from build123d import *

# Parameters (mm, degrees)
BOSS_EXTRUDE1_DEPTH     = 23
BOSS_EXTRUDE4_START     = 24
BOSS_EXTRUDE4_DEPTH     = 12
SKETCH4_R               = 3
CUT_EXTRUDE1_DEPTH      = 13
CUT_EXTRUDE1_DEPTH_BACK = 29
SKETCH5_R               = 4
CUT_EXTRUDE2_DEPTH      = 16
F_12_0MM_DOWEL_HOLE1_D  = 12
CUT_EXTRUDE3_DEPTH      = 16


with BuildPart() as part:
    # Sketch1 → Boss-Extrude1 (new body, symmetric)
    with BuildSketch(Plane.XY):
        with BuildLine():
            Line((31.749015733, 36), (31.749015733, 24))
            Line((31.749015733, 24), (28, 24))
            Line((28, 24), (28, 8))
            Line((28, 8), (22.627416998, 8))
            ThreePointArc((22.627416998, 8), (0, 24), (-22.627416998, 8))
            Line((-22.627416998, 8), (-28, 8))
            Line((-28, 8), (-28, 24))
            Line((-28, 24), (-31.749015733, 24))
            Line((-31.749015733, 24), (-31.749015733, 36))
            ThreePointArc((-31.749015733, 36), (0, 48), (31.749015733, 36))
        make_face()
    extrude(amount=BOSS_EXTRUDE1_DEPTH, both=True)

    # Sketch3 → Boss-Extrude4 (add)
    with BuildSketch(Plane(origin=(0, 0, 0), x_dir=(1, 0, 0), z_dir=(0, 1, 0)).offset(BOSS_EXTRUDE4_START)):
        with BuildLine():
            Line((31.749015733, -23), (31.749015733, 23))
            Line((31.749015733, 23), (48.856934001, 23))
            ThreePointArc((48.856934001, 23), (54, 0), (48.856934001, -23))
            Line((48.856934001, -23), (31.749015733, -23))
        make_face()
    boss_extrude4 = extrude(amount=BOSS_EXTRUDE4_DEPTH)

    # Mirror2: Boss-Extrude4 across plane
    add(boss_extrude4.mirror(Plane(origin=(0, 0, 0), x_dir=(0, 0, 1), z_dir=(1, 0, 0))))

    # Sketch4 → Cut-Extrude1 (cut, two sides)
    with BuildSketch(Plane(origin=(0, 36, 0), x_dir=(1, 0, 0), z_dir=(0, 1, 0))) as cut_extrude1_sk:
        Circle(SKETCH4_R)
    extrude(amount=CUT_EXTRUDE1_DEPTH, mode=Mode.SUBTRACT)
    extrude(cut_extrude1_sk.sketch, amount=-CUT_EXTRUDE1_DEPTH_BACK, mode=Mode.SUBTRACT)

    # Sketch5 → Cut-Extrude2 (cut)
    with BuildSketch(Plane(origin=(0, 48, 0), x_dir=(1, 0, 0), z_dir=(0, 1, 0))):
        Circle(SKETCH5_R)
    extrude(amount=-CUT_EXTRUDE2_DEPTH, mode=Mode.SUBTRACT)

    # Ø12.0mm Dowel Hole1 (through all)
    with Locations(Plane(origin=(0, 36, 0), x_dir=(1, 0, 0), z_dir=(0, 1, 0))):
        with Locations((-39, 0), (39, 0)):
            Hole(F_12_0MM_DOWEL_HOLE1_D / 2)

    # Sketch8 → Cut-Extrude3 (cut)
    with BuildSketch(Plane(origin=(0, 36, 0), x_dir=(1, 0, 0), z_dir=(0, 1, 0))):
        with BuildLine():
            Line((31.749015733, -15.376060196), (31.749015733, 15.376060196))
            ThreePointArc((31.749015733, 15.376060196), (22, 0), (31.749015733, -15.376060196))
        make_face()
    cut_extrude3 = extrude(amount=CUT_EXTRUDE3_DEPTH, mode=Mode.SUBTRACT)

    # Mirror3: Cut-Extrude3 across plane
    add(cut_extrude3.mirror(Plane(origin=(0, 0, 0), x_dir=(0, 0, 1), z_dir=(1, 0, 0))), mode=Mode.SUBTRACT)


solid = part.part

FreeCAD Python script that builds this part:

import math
import FreeCAD as App
import Part
import Sketcher
from FreeCAD import Vector

doc = App.newDocument("Part")
body = doc.addObject("PartDesign::Body", "Body")

sketch1 = doc.addObject("Sketcher::SketchObject", "Sketch")
body.addObject(sketch1)
sketch1.AttachmentSupport = (doc.XY_Plane, [""])
sketch1.MapMode = "FlatFace"
sketch1.addGeometry([
    Part.LineSegment(Vector(31.7, 24, 0), Vector(31.7, 36, 0)),
    Part.ArcOfCircle(Part.Circle(Vector(0, 0, 0), Vector(0, 0, 1), 48), math.radians(49), math.radians(131)),
    Part.LineSegment(Vector(-31.7, 36, 0), Vector(-31.7, 24, 0)),
    Part.LineSegment(Vector(-31.7, 24, 0), Vector(-28, 24, 0)),
    Part.LineSegment(Vector(-28, 24, 0), Vector(-28, 8, 0)),
    Part.LineSegment(Vector(-28, 8, 0), Vector(-22.6, 8, 0)),
    Part.ArcOfCircle(Part.Circle(Vector(0, 0, 0), Vector(0, 0, 1), 24), math.radians(19), math.radians(161)),
    Part.LineSegment(Vector(22.6, 8, 0), Vector(28, 8, 0)),
    Part.LineSegment(Vector(28, 8, 0), Vector(28, 24, 0)),
    Part.LineSegment(Vector(28, 24, 0), Vector(31.7, 24, 0)),
], False)
sketch1.addConstraint([
    Sketcher.Constraint("Coincident", 0, 2, 1, 1),
    Sketcher.Constraint("Coincident", 1, 2, 2, 1),
    Sketcher.Constraint("Coincident", 2, 2, 3, 1),
    Sketcher.Constraint("Coincident", 3, 2, 4, 1),
    Sketcher.Constraint("Coincident", 4, 2, 5, 1),
    Sketcher.Constraint("Coincident", 5, 2, 6, 2),
    Sketcher.Constraint("Coincident", 6, 1, 7, 1),
    Sketcher.Constraint("Coincident", 7, 2, 8, 1),
    Sketcher.Constraint("Coincident", 8, 2, 9, 1),
    Sketcher.Constraint("Coincident", 9, 2, 0, 1),
    Sketcher.Constraint("Vertical", 0),
    Sketcher.Constraint("Vertical", 2),
    Sketcher.Constraint("Horizontal", 3),
    Sketcher.Constraint("Vertical", 4),
    Sketcher.Constraint("Horizontal", 5),
    Sketcher.Constraint("Horizontal", 7),
    Sketcher.Constraint("Vertical", 8),
    Sketcher.Constraint("Horizontal", 9),
    Sketcher.Constraint("Coincident", 1, 3, -1, 1),
    Sketcher.Constraint("Coincident", 6, 3, -1, 1),
    Sketcher.Constraint("Symmetric", 4, 2, 7, 2, -2),
    Sketcher.Constraint("Symmetric", 2, 2, 9, 2, -2),
    Sketcher.Constraint("Radius", 1, 48.0),
    Sketcher.Constraint("Radius", 6, 24.0),
    Sketcher.Constraint("DistanceY", 0, 1, 0, 2, 12.0),
    Sketcher.Constraint("DistanceY", 4, 2, 4, 1, 16.0),
    Sketcher.Constraint("DistanceY", -1, 1, 0, 2, 36.0),
    Sketcher.Constraint("DistanceX", 3, 2, -1, 1, 28.0),
])
pad1 = doc.addObject("PartDesign::Pad", "Pad")
body.addObject(pad1)
pad1.Profile = sketch1
pad1.Length = 46
pad1.Midplane = True

sketch2 = doc.addObject("Sketcher::SketchObject", "Sketch001")
body.addObject(sketch2)
sketch2.AttachmentSupport = (doc.XZ_Plane, [""])
sketch2.MapMode = "FlatFace"
sketch2.AttachmentOffset = App.Placement(Vector(0, 0, -24), App.Rotation())
sketch2.addGeometry([
    Part.LineSegment(Vector(32, -23, 0), Vector(32, 23, 0)),
    Part.LineSegment(Vector(32, 23, 0), Vector(49, 23, 0)),
    Part.ArcOfCircle(Part.Circle(Vector(0, 0, 0), Vector(0, 0, 1), 54), math.radians(-25), math.radians(25)),
    Part.LineSegment(Vector(49, -23, 0), Vector(32, -23, 0)),
], False)
sketch2.addConstraint([
    Sketcher.Constraint("Coincident", 0, 2, 1, 1),
    Sketcher.Constraint("Coincident", 1, 2, 2, 2),
    Sketcher.Constraint("Coincident", 2, 1, 3, 1),
    Sketcher.Constraint("Coincident", 3, 2, 0, 1),
    Sketcher.Constraint("Vertical", 0),
    Sketcher.Constraint("Horizontal", 1),
    Sketcher.Constraint("Horizontal", 3),
    Sketcher.Constraint("Coincident", 2, 3, -1, 1),
    Sketcher.Constraint("Vertical", 1, 2, 2, 1),
    Sketcher.Constraint("Radius", 2, 54.0),
    Sketcher.Constraint("DistanceY", 0, 1, 0, 2, 46.0),
    Sketcher.Constraint("DistanceX", 1, 1, 1, 2, 17.107918),
])
pad2 = doc.addObject("PartDesign::Pad", "Pad001")
body.addObject(pad2)
pad2.Profile = sketch2
pad2.Length = 12
pad2.Reversed = True
doc.recompute()

mirrored = doc.addObject("PartDesign::Mirrored", "Mirrored")
body.addObject(mirrored)
mirrored.Originals = [pad2]
mirrored.MirrorPlane = (doc.YZ_Plane, [""])
body.Tip = mirrored

sketch3 = doc.addObject("Sketcher::SketchObject", "Sketch002")
body.addObject(sketch3)
sketch3.AttachmentSupport = (doc.XZ_Plane, [""])
sketch3.MapMode = "FlatFace"
sketch3.AttachmentOffset = App.Placement(Vector(0, 0, -36), App.Rotation())
sketch3.addGeometry(Part.Circle(Vector(0, 0, 0), Vector(0, 0, 1), 3), False)
sketch3.addConstraint([
    Sketcher.Constraint("Coincident", 0, 3, -1, 1),
    Sketcher.Constraint("Diameter", 0, 6.0),
])
pocket1 = doc.addObject("PartDesign::Pocket", "Pocket")
body.addObject(pocket1)
pocket1.Profile = sketch3
pocket1.Type = "ThroughAll"
pocket1.Midplane = True

sketch4 = doc.addObject("Sketcher::SketchObject", "Sketch003")
body.addObject(sketch4)
sketch4.AttachmentSupport = (doc.XZ_Plane, [""])
sketch4.MapMode = "FlatFace"
sketch4.AttachmentOffset = App.Placement(Vector(0, 0, -48), App.Rotation())
sketch4.addGeometry(Part.Circle(Vector(0, 0, 0), Vector(0, 0, 1), 4), False)
sketch4.addConstraint([
    Sketcher.Constraint("Coincident", 0, 3, -1, 1),
    Sketcher.Constraint("Diameter", 0, 8.0),
])
pocket2 = doc.addObject("PartDesign::Pocket", "Pocket001")
body.addObject(pocket2)
pocket2.Profile = sketch4
pocket2.Length = 16
pocket2.Reversed = True

sketch5 = doc.addObject("Sketcher::SketchObject", "Sketch004")
body.addObject(sketch5)
sketch5.AttachmentSupport = (doc.XZ_Plane, [""])
sketch5.MapMode = "FlatFace"
sketch5.AttachmentOffset = App.Placement(Vector(0, 0, -36), App.Rotation())
sketch5.addGeometry([
    Part.Circle(Vector(-39, 0, 0), Vector(0, 0, 1), 6),
    Part.Circle(Vector(39, 0, 0), Vector(0, 0, 1), 6),
], False)
sketch5.addConstraint([
    Sketcher.Constraint("Equal", 0, 1),
    Sketcher.Constraint("Symmetric", 0, 3, 1, 3, -1, 1),
    Sketcher.Constraint("PointOnObject", 0, 3, -1),
    Sketcher.Constraint("Diameter", 0, 12.0),
    Sketcher.Constraint("DistanceX", 0, 3, -1, 1, 39.0),
])
doc.recompute()
hole = doc.addObject("PartDesign::Hole", "Hole")
body.addObject(hole)
hole.Profile = sketch5
hole.ThreadType = "None"
hole.Diameter = 12
hole.DepthType = "ThroughAll"
hole.Reversed = True

sketch6 = doc.addObject("Sketcher::SketchObject", "Sketch005")
body.addObject(sketch6)
sketch6.AttachmentSupport = (doc.XZ_Plane, [""])
sketch6.MapMode = "FlatFace"
sketch6.AttachmentOffset = App.Placement(Vector(0, 0, -36), App.Rotation())
sketch6.addGeometry([
    Part.LineSegment(Vector(32, 15, 0), Vector(32, -15, 0)),
    Part.ArcOfCircle(Part.Circle(Vector(39, 0, 0), Vector(0, 0, 1), 17), math.radians(115), math.radians(245)),
], False)
sketch6.addConstraint([
    Sketcher.Constraint("Coincident", 0, 1, 1, 1),
    Sketcher.Constraint("Coincident", 1, 2, 0, 2),
    Sketcher.Constraint("Vertical", 0),
    Sketcher.Constraint("PointOnObject", 1, 3, -1),
    Sketcher.Constraint("Radius", 1, 17.0),
    Sketcher.Constraint("DistanceX", -1, 1, 1, 3, 39.0),
    Sketcher.Constraint("DistanceY", 0, 2, 0, 1, 30.75212),
])
pocket3 = doc.addObject("PartDesign::Pocket", "Pocket002")
body.addObject(pocket3)
pocket3.Profile = sketch6
pocket3.Length = 16
doc.recompute()

mirrored2 = doc.addObject("PartDesign::Mirrored", "Mirrored001")
body.addObject(mirrored2)
mirrored2.Originals = [pocket3]
mirrored2.MirrorPlane = (doc.YZ_Plane, [""])
body.Tip = mirrored2

doc.recompute()
